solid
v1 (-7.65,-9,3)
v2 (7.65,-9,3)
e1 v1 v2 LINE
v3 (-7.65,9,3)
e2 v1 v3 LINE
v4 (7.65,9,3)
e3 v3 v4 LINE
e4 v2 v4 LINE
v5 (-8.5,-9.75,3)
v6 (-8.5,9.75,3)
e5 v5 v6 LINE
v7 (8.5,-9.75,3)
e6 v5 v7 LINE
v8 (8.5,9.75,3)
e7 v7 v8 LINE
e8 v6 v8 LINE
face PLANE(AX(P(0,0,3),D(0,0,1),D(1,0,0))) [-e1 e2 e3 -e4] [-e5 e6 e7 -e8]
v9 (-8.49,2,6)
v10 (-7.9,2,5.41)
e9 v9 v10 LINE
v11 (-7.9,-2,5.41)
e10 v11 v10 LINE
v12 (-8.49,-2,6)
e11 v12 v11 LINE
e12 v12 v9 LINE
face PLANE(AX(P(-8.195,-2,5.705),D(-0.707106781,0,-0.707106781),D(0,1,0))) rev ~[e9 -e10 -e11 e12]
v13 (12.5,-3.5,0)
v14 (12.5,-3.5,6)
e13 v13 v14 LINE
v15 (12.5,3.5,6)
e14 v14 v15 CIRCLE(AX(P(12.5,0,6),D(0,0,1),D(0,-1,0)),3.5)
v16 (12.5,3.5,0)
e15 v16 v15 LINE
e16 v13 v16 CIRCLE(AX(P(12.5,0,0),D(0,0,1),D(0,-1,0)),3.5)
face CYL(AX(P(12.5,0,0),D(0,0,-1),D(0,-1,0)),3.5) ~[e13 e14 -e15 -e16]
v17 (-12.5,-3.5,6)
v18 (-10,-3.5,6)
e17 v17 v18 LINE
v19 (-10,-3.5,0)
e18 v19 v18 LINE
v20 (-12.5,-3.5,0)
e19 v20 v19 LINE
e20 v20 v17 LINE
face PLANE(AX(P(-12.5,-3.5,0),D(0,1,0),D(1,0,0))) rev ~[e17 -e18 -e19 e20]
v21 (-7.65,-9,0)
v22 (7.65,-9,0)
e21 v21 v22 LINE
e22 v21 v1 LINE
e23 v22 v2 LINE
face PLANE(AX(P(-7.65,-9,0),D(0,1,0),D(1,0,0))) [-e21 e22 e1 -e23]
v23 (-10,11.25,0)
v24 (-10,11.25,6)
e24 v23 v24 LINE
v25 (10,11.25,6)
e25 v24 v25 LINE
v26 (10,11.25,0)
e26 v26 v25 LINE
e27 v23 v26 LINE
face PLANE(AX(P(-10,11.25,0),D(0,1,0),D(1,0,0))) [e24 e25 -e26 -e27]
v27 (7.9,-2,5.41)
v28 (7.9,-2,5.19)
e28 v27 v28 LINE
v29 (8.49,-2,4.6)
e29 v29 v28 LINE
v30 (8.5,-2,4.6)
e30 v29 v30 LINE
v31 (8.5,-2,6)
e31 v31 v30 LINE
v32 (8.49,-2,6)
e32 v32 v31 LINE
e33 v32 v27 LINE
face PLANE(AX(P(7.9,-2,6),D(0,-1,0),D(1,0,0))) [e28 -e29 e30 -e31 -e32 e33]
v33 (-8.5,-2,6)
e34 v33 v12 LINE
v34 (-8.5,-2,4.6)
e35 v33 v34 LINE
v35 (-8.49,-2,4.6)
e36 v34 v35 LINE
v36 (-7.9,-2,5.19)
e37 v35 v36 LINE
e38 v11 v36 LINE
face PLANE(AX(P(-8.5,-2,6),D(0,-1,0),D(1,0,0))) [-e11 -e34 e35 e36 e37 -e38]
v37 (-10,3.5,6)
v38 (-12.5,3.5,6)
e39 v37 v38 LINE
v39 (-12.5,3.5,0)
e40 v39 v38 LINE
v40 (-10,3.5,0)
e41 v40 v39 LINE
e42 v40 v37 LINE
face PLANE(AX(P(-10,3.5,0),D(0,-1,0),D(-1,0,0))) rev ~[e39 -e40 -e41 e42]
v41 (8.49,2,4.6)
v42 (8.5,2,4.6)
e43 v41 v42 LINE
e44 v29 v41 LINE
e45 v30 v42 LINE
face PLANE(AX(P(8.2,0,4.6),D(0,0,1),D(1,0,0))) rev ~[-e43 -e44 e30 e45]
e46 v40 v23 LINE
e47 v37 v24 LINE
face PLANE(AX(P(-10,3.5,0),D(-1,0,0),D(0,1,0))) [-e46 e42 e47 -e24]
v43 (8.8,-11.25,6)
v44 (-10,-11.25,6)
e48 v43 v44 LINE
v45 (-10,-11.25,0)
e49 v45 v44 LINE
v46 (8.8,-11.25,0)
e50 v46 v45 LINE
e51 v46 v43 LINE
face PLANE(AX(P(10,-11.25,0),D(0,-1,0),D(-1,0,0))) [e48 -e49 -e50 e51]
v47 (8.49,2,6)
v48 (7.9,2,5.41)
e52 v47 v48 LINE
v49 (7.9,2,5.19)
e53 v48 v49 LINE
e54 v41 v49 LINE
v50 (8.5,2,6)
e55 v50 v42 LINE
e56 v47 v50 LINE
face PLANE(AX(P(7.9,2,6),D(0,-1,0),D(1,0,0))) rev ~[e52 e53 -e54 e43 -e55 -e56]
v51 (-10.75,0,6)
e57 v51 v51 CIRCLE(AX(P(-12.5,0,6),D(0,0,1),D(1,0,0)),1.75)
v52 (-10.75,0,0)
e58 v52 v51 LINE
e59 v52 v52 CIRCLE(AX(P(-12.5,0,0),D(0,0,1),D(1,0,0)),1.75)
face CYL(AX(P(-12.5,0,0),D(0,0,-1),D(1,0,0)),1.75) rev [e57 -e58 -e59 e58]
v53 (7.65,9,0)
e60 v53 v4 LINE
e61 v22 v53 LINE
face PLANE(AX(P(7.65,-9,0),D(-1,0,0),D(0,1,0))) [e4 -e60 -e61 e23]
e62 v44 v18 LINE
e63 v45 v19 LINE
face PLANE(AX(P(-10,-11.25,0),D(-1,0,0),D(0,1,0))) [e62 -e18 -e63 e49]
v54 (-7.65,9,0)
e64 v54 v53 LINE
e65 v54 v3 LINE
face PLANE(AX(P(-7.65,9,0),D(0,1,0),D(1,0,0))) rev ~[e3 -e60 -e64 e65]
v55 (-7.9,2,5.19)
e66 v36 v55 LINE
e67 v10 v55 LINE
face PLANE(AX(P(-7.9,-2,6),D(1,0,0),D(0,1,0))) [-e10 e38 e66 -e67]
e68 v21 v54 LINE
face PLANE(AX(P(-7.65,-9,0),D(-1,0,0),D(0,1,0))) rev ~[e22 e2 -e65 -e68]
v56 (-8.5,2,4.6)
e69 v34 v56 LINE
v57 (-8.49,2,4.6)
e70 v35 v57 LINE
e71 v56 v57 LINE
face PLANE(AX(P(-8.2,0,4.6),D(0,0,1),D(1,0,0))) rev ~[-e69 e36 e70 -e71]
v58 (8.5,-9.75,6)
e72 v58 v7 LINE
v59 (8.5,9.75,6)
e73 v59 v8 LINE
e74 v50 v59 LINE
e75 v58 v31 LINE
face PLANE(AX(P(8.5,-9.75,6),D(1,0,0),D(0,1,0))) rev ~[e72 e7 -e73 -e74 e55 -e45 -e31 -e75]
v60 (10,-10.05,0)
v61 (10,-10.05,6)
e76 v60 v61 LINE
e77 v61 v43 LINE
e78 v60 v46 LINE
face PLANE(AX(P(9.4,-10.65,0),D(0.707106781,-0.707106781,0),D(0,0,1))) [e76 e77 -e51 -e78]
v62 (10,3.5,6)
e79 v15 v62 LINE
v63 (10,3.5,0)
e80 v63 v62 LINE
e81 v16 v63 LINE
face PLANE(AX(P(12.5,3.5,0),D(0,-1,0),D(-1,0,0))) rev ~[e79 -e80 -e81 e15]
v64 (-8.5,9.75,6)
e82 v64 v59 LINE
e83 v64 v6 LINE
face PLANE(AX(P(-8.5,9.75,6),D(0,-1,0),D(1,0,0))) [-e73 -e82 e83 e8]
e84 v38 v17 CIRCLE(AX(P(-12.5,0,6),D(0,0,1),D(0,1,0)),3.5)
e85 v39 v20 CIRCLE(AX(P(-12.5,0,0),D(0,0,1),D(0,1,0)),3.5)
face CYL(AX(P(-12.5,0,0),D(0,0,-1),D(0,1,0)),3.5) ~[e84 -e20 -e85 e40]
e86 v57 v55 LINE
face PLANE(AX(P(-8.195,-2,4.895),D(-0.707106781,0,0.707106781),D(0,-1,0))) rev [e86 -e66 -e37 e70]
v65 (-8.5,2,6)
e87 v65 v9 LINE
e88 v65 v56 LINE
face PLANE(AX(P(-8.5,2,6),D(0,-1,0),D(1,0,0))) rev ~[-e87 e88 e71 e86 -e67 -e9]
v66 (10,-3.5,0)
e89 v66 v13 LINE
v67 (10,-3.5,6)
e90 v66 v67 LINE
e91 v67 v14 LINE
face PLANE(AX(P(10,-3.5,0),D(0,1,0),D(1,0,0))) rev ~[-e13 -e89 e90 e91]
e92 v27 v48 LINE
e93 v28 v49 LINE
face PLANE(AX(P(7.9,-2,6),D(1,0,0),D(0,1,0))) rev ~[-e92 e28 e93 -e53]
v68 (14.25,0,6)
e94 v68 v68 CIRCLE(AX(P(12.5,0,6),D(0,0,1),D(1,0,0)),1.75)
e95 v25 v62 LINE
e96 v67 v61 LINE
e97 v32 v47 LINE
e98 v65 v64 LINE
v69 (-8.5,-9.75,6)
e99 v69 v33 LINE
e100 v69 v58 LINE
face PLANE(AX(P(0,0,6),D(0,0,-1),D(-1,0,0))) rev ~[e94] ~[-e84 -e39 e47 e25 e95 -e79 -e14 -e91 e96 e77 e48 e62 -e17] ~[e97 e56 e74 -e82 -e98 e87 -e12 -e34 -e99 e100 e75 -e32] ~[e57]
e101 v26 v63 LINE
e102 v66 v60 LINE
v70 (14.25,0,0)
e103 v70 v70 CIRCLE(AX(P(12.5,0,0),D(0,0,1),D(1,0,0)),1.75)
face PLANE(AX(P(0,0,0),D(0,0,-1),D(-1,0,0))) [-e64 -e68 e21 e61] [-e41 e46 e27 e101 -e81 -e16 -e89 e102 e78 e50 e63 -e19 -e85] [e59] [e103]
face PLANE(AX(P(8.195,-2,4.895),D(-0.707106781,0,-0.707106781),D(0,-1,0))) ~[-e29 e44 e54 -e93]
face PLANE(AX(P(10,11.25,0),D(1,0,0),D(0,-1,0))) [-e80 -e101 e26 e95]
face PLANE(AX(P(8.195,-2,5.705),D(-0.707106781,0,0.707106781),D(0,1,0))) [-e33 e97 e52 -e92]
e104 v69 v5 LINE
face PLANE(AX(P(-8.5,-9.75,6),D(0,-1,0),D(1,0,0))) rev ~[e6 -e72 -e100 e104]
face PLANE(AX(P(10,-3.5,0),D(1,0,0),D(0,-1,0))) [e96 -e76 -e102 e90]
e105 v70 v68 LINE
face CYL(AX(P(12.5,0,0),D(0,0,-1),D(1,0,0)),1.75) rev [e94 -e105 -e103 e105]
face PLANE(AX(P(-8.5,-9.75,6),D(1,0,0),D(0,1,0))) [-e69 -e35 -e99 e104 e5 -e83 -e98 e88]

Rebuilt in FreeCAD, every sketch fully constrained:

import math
import FreeCAD as App
import Part
import Sketcher

V = App.Vector
Q = App.Units.Quantity


def edges_at(feature, points):
    """Names of the edges that pass closest to the given points."""
    edges = feature.Shape.Edges
    near = lambda p: min(range(len(edges)), key=lambda i: edges[i].distToShape(Part.Vertex(*p))[0])
    return sorted({f"Edge{near(p) + 1}" for p in points})

doc = App.newDocument("Part")
params = doc.addObject("Spreadsheet::Sheet", "Params")
for row, (alias, value) in enumerate([
    ("sketch1_diameter", "3.5 mm"),
    ("sketch1_radius", "3.5 mm"),
    ("sketch1_width", "20 mm"),
    ("sketch1_height", "18 mm"),
    ("sketch1_width2", "2.5 mm"),
    ("pad1_length", "6 mm"),
    ("sketch2_width", "17 mm"),
    ("sketch2_height", "19.5 mm"),
    ("pocket1_length", "3 mm"),
    ("sketch3_height", "4 mm"),
    ("sketch3_width", "0.6 mm"),
    ("pad2_length", "1.4 mm"),
    ("chamfer_size", "0.59 mm"),
    ("chamfer2_size", "1.2 mm"),
], start=1):
    params.set(f"A{row}", alias)
    params.set(f"B{row}", "=" + value)
    params.setAlias(f"B{row}", alias)

body = doc.addObject("PartDesign::Body", "Body")

sketch1 = body.newObject("Sketcher::SketchObject", "Sketch")
sketch1.AttachmentSupport = (doc.getObject("XY_Plane"), [""])
sketch1.MapMode = "FlatFace"
sketch1.addGeometry([
    Part.LineSegment(V(10, 11.2, 0), V(-10, 11.2, 0)),
    Part.LineSegment(V(-10, 11.2, 0), V(-10, 3.5, 0)),
    Part.LineSegment(V(-10, 3.5, 0), V(-12.5, 3.5, 0)),
    Part.ArcOfCircle(Part.Circle(V(-12.5, 0, 0), V(0, 0, 1), 3.5), math.radians(90), math.radians(270)),
    Part.LineSegment(V(-12.5, -3.5, 0), V(-10, -3.5, 0)),
    Part.LineSegment(V(-10, -3.5, 0), V(-10, -11.2, 0)),
    Part.LineSegment(V(-10, -11.2, 0), V(10, -11.2, 0)),
    Part.LineSegment(V(10, -11.2, 0), V(10, -3.5, 0)),
    Part.LineSegment(V(10, -3.5, 0), V(12.5, -3.5, 0)),
    Part.ArcOfCircle(Part.Circle(V(12.5, 0, 0), V(0, 0, 1), 3.5), math.radians(-90), math.radians(90)),
    Part.LineSegment(V(12.5, 3.5, 0), V(10, 3.5, 0)),
    Part.LineSegment(V(10, 3.5, 0), V(10, 11.2, 0)),
    Part.Circle(V(12.5, 0, 0), V(0, 0, 1), 1.8),
    Part.LineSegment(V(-7.7, -9, 0), V(-7.7, 9, 0)),
    Part.LineSegment(V(-7.7, 9, 0), V(7.7, 9, 0)),
    Part.LineSegment(V(7.7, 9, 0), V(7.7, -9, 0)),
    Part.LineSegment(V(7.7, -9, 0), V(-7.7, -9, 0)),
    Part.Circle(V(-12.5, 0, 0), V(0, 0, 1), 1.8),
], False)
sketch1.addConstraint([
    Sketcher.Constraint("Coincident", 0, 2, 1, 1),
    Sketcher.Constraint("Coincident", 1, 2, 2, 1),
    Sketcher.Constraint("Tangent", 2, 2, 3, 1),
    Sketcher.Constraint("Tangent", 3, 2, 4, 1),
    Sketcher.Constraint("Coincident", 4, 2, 5, 1),
    Sketcher.Constraint("Coincident", 5, 2, 6, 1),
    Sketcher.Constraint("Coincident", 6, 2, 7, 1),
    Sketcher.Constraint("Coincident", 7, 2, 8, 1),
    Sketcher.Constraint("Tangent", 8, 2, 9, 1),
    Sketcher.Constraint("Tangent", 9, 2, 10, 1),
    Sketcher.Constraint("Coincident", 10, 2, 11, 1),
    Sketcher.Constraint("Coincident", 11, 2, 0, 1),
    Sketcher.Constraint("Coincident", 13, 2, 14, 1),
    Sketcher.Constraint("Coincident", 14, 2, 15, 1),
    Sketcher.Constraint("Coincident", 15, 2, 16, 1),
    Sketcher.Constraint("Coincident", 16, 2, 13, 1),
    Sketcher.Constraint("Horizontal", 0),
    Sketcher.Constraint("Vertical", 1),
    Sketcher.Constraint("Horizontal", 2),
    Sketcher.Constraint("Horizontal", 4),
    Sketcher.Constraint("Vertical", 5),
    Sketcher.Constraint("Horizontal", 6),
    Sketcher.Constraint("Vertical", 7),
    Sketcher.Constraint("Horizontal", 8),
    Sketcher.Constraint("Horizontal", 10),
    Sketcher.Constraint("Vertical", 11),
    Sketcher.Constraint("Vertical", 13),
    Sketcher.Constraint("Horizontal", 14),
    Sketcher.Constraint("Vertical", 15),
    Sketcher.Constraint("Horizontal", 16),
    Sketcher.Constraint("Coincident", 12, 3, 9, 3),
    Sketcher.Constraint("Coincident", 17, 3, 3, 3),
    Sketcher.Constraint("Equal", 3, 9),
    Sketcher.Constraint("Equal", 12, 17),
    Sketcher.Constraint("Symmetric", 3, 3, 9, 3, -1, 1),
    Sketcher.Constraint("Symmetric", 0, 2, 6, 2, -1, 1),
    Sketcher.Constraint("Symmetric", 13, 2, 15, 2, -1, 1),
    Sketcher.Constraint("Symmetric", 4, 2, 7, 2, -2),
    Sketcher.Constraint("Vertical", 7, 2, 10, 2),
    Sketcher.Constraint("Diameter", 12, Q("3.5 mm")),
    Sketcher.Constraint("Radius", 3, Q("3.5 mm")),
    Sketcher.Constraint("DistanceX", 0, 2, 0, 1, Q("20 mm")),
    Sketcher.Constraint("DistanceY", 13, 1, 13, 2, Q("18 mm")),
    Sketcher.Constraint("DistanceX", 2, 2, 2, 1, Q("2.5 mm")),
    Sketcher.Constraint("DistanceX", 14, 1, 14, 2, Q("15.3 mm")),
    Sketcher.Constraint("DistanceY", 1, 2, 1, 1, Q("7.75 mm")),
])
sketch1.setExpression("Constraints[39]", "Params.sketch1_diameter")
sketch1.setExpression("Constraints[40]", "Params.sketch1_radius")
sketch1.setExpression("Constraints[41]", "Params.sketch1_width")
sketch1.setExpression("Constraints[42]", "Params.sketch1_height")
sketch1.setExpression("Constraints[43]", "Params.sketch1_width2")
pad1 = body.newObject("PartDesign::Pad", "Pad")
pad1.Profile = sketch1
pad1.setExpression("Length", "Params.pad1_length")

sketch2 = body.newObject("Sketcher::SketchObject", "Sketch001")
sketch2.AttachmentSupport = (doc.getObject("XY_Plane"), [""])
sketch2.MapMode = "FlatFace"
sketch2.AttachmentOffset = App.Placement(V(0, 0, 6), App.Rotation())
sketch2.addGeometry([
    Part.LineSegment(V(-8, 10, 0), V(-8, -10, 0)),
    Part.LineSegment(V(-8, -10, 0), V(8, -10, 0)),
    Part.LineSegment(V(8, -10, 0), V(8, 10, 0)),
    Part.LineSegment(V(8, 10, 0), V(-8, 10, 0)),
], False)
sketch2.addConstraint([
    Sketcher.Constraint("Coincident", 0, 2, 1, 1),
    Sketcher.Constraint("Coincident", 1, 2, 2, 1),
    Sketcher.Constraint("Coincident", 2, 2, 3, 1),
    Sketcher.Constraint("Coincident", 3, 2, 0, 1),
    Sketcher.Constraint("Vertical", 0),
    Sketcher.Constraint("Horizontal", 1),
    Sketcher.Constraint("Vertical", 2),
    Sketcher.Constraint("Horizontal", 3),
    Sketcher.Constraint("Symmetric", 0, 2, 2, 2, -1, 1),
    Sketcher.Constraint("DistanceX", 1, 1, 1, 2, Q("17 mm")),
    Sketcher.Constraint("DistanceY", 0, 2, 0, 1, Q("19.5 mm")),
])
sketch2.setExpression("Constraints[9]", "Params.sketch2_width")
sketch2.setExpression("Constraints[10]", "Params.sketch2_height")
pocket1 = body.newObject("PartDesign::Pocket", "Pocket")
pocket1.Profile = sketch2
pocket1.setExpression("Length", "Params.pocket1_length")

sketch3 = body.newObject("Sketcher::SketchObject", "Sketch002")
sketch3.AttachmentSupport = (doc.getObject("XY_Plane"), [""])
sketch3.MapMode = "FlatFace"
sketch3.AttachmentOffset = App.Placement(V(0, 0, 6), App.Rotation())
sketch3.addGeometry([
    Part.LineSegment(V(-8.5, 2, 0), V(-8.5, -2, 0)),
    Part.LineSegment(V(-8.5, -2, 0), V(-7.9, -2, 0)),
    Part.LineSegment(V(-7.9, -2, 0), V(-7.9, 2, 0)),
    Part.LineSegment(V(-7.9, 2, 0), V(-8.5, 2, 0)),
    Part.LineSegment(V(7.9, 2, 0), V(7.9, -2, 0)),
    Part.LineSegment(V(7.9, -2, 0), V(8.5, -2, 0)),
    Part.LineSegment(V(8.5, -2, 0), V(8.5, 2, 0)),
    Part.LineSegment(V(8.5, 2, 0), V(7.9, 2, 0)),
], False)
sketch3.addConstraint([
    Sketcher.Constraint("Coincident", 0, 2, 1, 1),
    Sketcher.Constraint("Coincident", 1, 2, 2, 1),
    Sketcher.Constraint("Coincident", 2, 2, 3, 1),
    Sketcher.Constraint("Coincident", 3, 2, 0, 1),
    Sketcher.Constraint("Coincident", 4, 2, 5, 1),
    Sketcher.Constraint("Coincident", 5, 2, 6, 1),
    Sketcher.Constraint("Coincident", 6, 2, 7, 1),
    Sketcher.Constraint("Coincident", 7, 2, 4, 1),
    Sketcher.Constraint("Vertical", 0),
    Sketcher.Constraint("Horizontal", 1),
    Sketcher.Constraint("Vertical", 2),
    Sketcher.Constraint("Horizontal", 3),
    Sketcher.Constraint("Vertical", 4),
    Sketcher.Constraint("Horizontal", 5),
    Sketcher.Constraint("Vertical", 6),
    Sketcher.Constraint("Horizontal", 7),
    Sketcher.Constraint("Symmetric", 2, 2, 4, 2, -1, 1),
    Sketcher.Constraint("Symmetric", 0, 2, 6, 2, -1, 1),
    Sketcher.Constraint("Horizontal", 1, 2, 4, 2),
    Sketcher.Constraint("DistanceY", 0, 2, 0, 1, Q("4 mm")),
    Sketcher.Constraint("DistanceX", 1, 1, 1, 2, Q("0.6 mm")),
    Sketcher.Constraint("DistanceX", 0, 2, 5, 2, Q("17 mm")),
])
sketch3.setExpression("Constraints[19]", "Params.sketch3_height")
sketch3.setExpression("Constraints[20]", "Params.sketch3_width")
pad2 = body.newObject("PartDesign::Pad", "Pad001")
pad2.Profile = sketch3
pad2.setExpression("Length", "Params.pad2_length")
pad2.Reversed = True
doc.recompute()

chamfer = body.newObject("PartDesign::Chamfer", "Chamfer")
chamfer.Base = (pad2, edges_at(pad2, [
    (7.9, 0, 6),
    (7.9, 0, 4.6),
    (-7.9, 0, 6),
    (-7.9, 0, 4.6),
]))
chamfer.setExpression("Size", "Params.chamfer_size")
doc.recompute()

chamfer2 = body.newObject("PartDesign::Chamfer", "Chamfer001")
chamfer2.Base = (chamfer, edges_at(chamfer, [(10, -11.25, 3)]))
chamfer2.setExpression("Size", "Params.chamfer2_size")

doc.recompute()
